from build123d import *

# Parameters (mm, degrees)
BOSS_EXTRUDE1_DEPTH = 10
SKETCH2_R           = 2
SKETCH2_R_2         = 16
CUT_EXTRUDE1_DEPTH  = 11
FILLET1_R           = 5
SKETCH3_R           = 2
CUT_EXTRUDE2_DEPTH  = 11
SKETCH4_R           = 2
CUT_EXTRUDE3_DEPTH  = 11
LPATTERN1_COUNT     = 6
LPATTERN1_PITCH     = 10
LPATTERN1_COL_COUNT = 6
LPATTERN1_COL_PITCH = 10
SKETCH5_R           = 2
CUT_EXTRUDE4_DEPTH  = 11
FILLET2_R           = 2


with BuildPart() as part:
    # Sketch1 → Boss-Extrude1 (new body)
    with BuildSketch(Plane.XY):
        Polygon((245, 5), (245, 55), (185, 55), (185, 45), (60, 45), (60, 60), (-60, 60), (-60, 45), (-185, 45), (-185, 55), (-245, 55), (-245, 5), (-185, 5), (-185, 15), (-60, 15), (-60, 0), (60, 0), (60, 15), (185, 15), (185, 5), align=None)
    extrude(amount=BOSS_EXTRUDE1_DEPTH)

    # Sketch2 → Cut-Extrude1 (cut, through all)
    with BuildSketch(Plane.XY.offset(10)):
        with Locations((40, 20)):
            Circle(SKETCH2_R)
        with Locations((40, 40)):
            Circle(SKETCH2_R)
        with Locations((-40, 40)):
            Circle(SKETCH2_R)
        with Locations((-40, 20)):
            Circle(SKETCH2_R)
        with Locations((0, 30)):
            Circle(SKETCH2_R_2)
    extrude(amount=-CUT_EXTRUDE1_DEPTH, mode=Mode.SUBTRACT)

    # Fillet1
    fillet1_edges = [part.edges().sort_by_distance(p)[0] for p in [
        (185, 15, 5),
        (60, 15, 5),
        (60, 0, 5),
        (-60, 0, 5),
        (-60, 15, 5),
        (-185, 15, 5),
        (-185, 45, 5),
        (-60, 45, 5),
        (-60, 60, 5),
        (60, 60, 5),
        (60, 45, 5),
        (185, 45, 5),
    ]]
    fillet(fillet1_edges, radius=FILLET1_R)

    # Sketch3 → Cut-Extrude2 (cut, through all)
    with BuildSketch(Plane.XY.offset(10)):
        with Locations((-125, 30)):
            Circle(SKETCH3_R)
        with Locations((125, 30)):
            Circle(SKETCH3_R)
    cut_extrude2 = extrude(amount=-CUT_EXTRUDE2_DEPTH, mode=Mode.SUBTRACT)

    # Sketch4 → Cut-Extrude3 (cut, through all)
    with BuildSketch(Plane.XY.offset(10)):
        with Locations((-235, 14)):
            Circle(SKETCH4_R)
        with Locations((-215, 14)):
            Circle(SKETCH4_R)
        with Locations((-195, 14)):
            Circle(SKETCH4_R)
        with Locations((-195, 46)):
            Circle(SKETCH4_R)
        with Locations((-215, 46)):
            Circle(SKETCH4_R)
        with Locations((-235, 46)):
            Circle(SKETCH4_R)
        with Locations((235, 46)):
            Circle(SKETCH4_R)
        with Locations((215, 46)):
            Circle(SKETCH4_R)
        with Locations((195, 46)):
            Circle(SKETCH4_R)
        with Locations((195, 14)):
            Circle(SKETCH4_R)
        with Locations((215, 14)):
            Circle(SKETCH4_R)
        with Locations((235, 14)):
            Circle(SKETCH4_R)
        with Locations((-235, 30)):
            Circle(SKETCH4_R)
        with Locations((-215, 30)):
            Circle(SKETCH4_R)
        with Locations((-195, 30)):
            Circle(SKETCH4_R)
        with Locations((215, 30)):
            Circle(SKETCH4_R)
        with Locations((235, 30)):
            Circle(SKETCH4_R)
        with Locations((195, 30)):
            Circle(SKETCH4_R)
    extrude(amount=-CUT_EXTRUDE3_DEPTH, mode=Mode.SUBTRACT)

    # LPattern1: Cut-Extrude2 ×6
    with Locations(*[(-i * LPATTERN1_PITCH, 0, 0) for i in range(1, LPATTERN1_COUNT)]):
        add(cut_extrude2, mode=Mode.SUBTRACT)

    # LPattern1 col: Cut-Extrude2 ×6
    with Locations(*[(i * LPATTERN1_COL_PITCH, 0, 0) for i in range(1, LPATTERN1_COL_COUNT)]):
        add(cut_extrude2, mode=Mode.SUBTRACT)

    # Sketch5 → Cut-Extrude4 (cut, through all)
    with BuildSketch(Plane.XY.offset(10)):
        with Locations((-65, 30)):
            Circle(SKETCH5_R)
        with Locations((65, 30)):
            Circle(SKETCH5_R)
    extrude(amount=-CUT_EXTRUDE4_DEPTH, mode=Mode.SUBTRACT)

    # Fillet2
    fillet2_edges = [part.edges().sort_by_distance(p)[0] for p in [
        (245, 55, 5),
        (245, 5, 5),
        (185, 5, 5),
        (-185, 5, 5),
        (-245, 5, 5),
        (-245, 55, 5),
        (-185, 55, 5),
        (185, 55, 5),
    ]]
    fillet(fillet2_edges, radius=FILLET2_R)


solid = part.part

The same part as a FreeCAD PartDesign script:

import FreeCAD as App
import Part
import Sketcher


def edges_at(feature, points):
    """Names of the edges that pass closest to the given points."""
    edges = feature.Shape.Edges
    near = lambda p: min(range(len(edges)), key=lambda i: edges[i].distToShape(Part.Vertex(*p))[0])
    return sorted({f"Edge{near(p) + 1}" for p in points})

doc = App.newDocument("Part")
body = doc.addObject("PartDesign::Body", "Body")

# Sketch on XY plane
sketch1 = body.newObject("Sketcher::SketchObject", "Sketch")
sketch1.AttachmentSupport = (doc.getObject("XY_Plane"), [""])
sketch1.MapMode = "FlatFace"
sketch1.addGeometry([
    Part.LineSegment(App.Vector(245, 5, 0), App.Vector(245, 55, 0)),  # 0
    Part.LineSegment(App.Vector(245, 55, 0), App.Vector(185, 55, 0)),  # 1
    Part.LineSegment(App.Vector(185, 55, 0), App.Vector(185, 45, 0)),  # 2
    Part.LineSegment(App.Vector(185, 45, 0), App.Vector(60, 45, 0)),  # 3
    Part.LineSegment(App.Vector(60, 45, 0), App.Vector(60, 60, 0)),  # 4
    Part.LineSegment(App.Vector(60, 60, 0), App.Vector(-60, 60, 0)),  # 5
    Part.LineSegment(App.Vector(-60, 60, 0), App.Vector(-60, 45, 0)),  # 6
    Part.LineSegment(App.Vector(-60, 45, 0), App.Vector(-185, 45, 0)),  # 7
    Part.LineSegment(App.Vector(-185, 45, 0), App.Vector(-185, 55, 0)),  # 8
    Part.LineSegment(App.Vector(-185, 55, 0), App.Vector(-245, 55, 0)),  # 9
    Part.LineSegment(App.Vector(-245, 55, 0), App.Vector(-245, 5, 0)),  # 10
    Part.LineSegment(App.Vector(-245, 5, 0), App.Vector(-185, 5, 0)),  # 11
    Part.LineSegment(App.Vector(-185, 5, 0), App.Vector(-185, 15, 0)),  # 12
    Part.LineSegment(App.Vector(-185, 15, 0), App.Vector(-60, 15, 0)),  # 13
    Part.LineSegment(App.Vector(-60, 15, 0), App.Vector(-60, 0, 0)),  # 14
    Part.LineSegment(App.Vector(-60, 0, 0), App.Vector(60, 0, 0)),  # 15
    Part.LineSegment(App.Vector(60, 0, 0), App.Vector(60, 15, 0)),  # 16
    Part.LineSegment(App.Vector(60, 15, 0), App.Vector(185, 15, 0)),  # 17
    Part.LineSegment(App.Vector(185, 15, 0), App.Vector(185, 5, 0)),  # 18
    Part.LineSegment(App.Vector(185, 5, 0), App.Vector(245, 5, 0)),  # 19
], False)
sketch1.addConstraint([
    Sketcher.Constraint("Coincident", 0, 2, 1, 1),
    Sketcher.Constraint("Coincident", 1, 2, 2, 1),
    Sketcher.Constraint("Coincident", 2, 2, 3, 1),
    Sketcher.Constraint("Coincident", 3, 2, 4, 1),
    Sketcher.Constraint("Coincident", 4, 2, 5, 1),
    Sketcher.Constraint("Coincident", 5, 2, 6, 1),
    Sketcher.Constraint("Coincident", 6, 2, 7, 1),
    Sketcher.Constraint("Coincident", 7, 2, 8, 1),
    Sketcher.Constraint("Coincident", 8, 2, 9, 1),
    Sketcher.Constraint("Coincident", 9, 2, 10, 1),
    Sketcher.Constraint("Coincident", 10, 2, 11, 1),
    Sketcher.Constraint("Coincident", 11, 2, 12, 1),
    Sketcher.Constraint("Coincident", 12, 2, 13, 1),
    Sketcher.Constraint("Coincident", 13, 2, 14, 1),
    Sketcher.Constraint("Coincident", 14, 2, 15, 1),
    Sketcher.Constraint("Coincident", 15, 2, 16, 1),
    Sketcher.Constraint("Coincident", 16, 2, 17, 1),
    Sketcher.Constraint("Coincident", 17, 2, 18, 1),
    Sketcher.Constraint("Coincident", 18, 2, 19, 1),
    Sketcher.Constraint("Coincident", 19, 2, 0, 1),
    Sketcher.Constraint("Vertical", 0),
    Sketcher.Constraint("Horizontal", 1),
    Sketcher.Constraint("Vertical", 2),
    Sketcher.Constraint("Horizontal", 3),
    Sketcher.Constraint("Vertical", 4),
    Sketcher.Constraint("Horizontal", 5),
    Sketcher.Constraint("Vertical", 6),
    Sketcher.Constraint("Horizontal", 7),
    Sketcher.Constraint("Vertical", 8),
    Sketcher.Constraint("Horizontal", 9),
    Sketcher.Constraint("Vertical", 10),
    Sketcher.Constraint("Horizontal", 11),
    Sketcher.Constraint("Vertical", 12),
    Sketcher.Constraint("Horizontal", 13),
    Sketcher.Constraint("Vertical", 14),
    Sketcher.Constraint("Horizontal", 15),
    Sketcher.Constraint("Vertical", 16),
    Sketcher.Constraint("Horizontal", 17),
    Sketcher.Constraint("Vertical", 18),
    Sketcher.Constraint("Horizontal", 19),
    Sketcher.Constraint("Symmetric", 14, 2, 15, 2, -1, 1),
    Sketcher.Constraint("Symmetric", 3, 2, 6, 2, -2),
    Sketcher.Constraint("Symmetric", 1, 2, 8, 2, -2),
    Sketcher.Constraint("Symmetric", 12, 2, 17, 2, -2),
    Sketcher.Constraint("Symmetric", 10, 2, 19, 2, -2),
    Sketcher.Constraint("Vertical", 8, 2, 11, 2),
    Sketcher.Constraint("Vertical", 6, 2, 13, 2),
    Sketcher.Constraint("Equal", 8, 12),
    Sketcher.Constraint("Equal", 6, 14),
    Sketcher.Constraint("DistanceX", 1, 2, 1, 1, 60.0),
    Sketcher.Constraint("DistanceX", 3, 2, 3, 1, 125.0),
    Sketcher.Constraint("DistanceX", 5, 2, 5, 1, 120.0),
    Sketcher.Constraint("DistanceY", 0, 1, 0, 2, 50.0),
    Sketcher.Constraint("DistanceY", 2, 2, 2, 1, 10.0),
    Sketcher.Constraint("DistanceY", 4, 1, 4, 2, 15.0),
])
pad1 = body.newObject("PartDesign::Pad", "Pad")
pad1.Profile = sketch1
pad1.Length = 10

# Sketch on XY plane
sketch2 = body.newObject("Sketcher::SketchObject", "Sketch001")
sketch2.AttachmentSupport = (doc.getObject("XY_Plane"), [""])
sketch2.MapMode = "FlatFace"
sketch2.AttachmentOffset = App.Placement(App.Vector(0, 0, 10), App.Rotation())
sketch2.addGeometry([
    Part.Circle(App.Vector(40, 20, 0), App.Vector(0, 0, 1), 2),  # 0
    Part.Circle(App.Vector(40, 40, 0), App.Vector(0, 0, 1), 2),  # 1
    Part.Circle(App.Vector(-40, 40, 0), App.Vector(0, 0, 1), 2),  # 2
    Part.Circle(App.Vector(-40, 20, 0), App.Vector(0, 0, 1), 2),  # 3
    Part.Circle(App.Vector(0, 30, 0), App.Vector(0, 0, 1), 16),  # 4
], False)
sketch2.addConstraint([
    Sketcher.Constraint("Equal", 0, 1),
    Sketcher.Constraint("Equal", 1, 2),
    Sketcher.Constraint("Equal", 2, 3),
    Sketcher.Constraint("Symmetric", 1, 3, 2, 3, -2),
    Sketcher.Constraint("Symmetric", 0, 3, 3, 3, -2),
    Sketcher.Constraint("PointOnObject", 4, 3, -2),
    Sketcher.Constraint("Vertical", 0, 3, 1, 3),
    Sketcher.Constraint("Diameter", 0, 4.0),
    Sketcher.Constraint("Diameter", 4, 32.0),
    Sketcher.Constraint("DistanceX", -1, 1, 0, 3, 40.0),
    Sketcher.Constraint("DistanceY", -1, 1, 0, 3, 20.0),
    Sketcher.Constraint("DistanceY", -1, 1, 1, 3, 40.0),
    Sketcher.Constraint("DistanceY", -1, 1, 4, 3, 30.0),
])
pocket1 = body.newObject("PartDesign::Pocket", "Pocket")
pocket1.Profile = sketch2
pocket1.Type = "ThroughAll"
doc.recompute()

fillet = body.newObject("PartDesign::Fillet", "Fillet")
fillet.Base = (pocket1, edges_at(pocket1, [
    (185, 15, 5),
    (60, 15, 5),
    (60, 0, 5),
    (-60, 0, 5),
    (-60, 15, 5),
    (-185, 15, 5),
    (-185, 45, 5),
    (-60, 45, 5),
    (-60, 60, 5),
    (60, 60, 5),
    (60, 45, 5),
    (185, 45, 5),
]))
fillet.Radius = 5

# Sketch on XY plane
sketch3 = body.newObject("Sketcher::SketchObject", "Sketch002")
sketch3.AttachmentSupport = (doc.getObject("XY_Plane"), [""])
sketch3.MapMode = "FlatFace"
sketch3.AttachmentOffset = App.Placement(App.Vector(0, 0, 10), App.Rotation())
sketch3.addGeometry([
    Part.Circle(App.Vector(-125, 30, 0), App.Vector(0, 0, 1), 2),
    Part.Circle(App.Vector(125, 30, 0), App.Vector(0, 0, 1), 2),
], False)
sketch3.addConstraint([
    Sketcher.Constraint("Equal", 0, 1),
    Sketcher.Constraint("Symmetric", 0, 3, 1, 3, -2),
    Sketcher.Constraint("Diameter", 0, 4.0),
    Sketcher.Constraint("DistanceX", 0, 3, -1, 1, 125.0),
    Sketcher.Constraint("DistanceY", -1, 1, 0, 3, 30.0),
])
pocket2 = body.newObject("PartDesign::Pocket", "Pocket001")
pocket2.Profile = sketch3
pocket2.Type = "ThroughAll"

# Sketch on XY plane
sketch4 = body.newObject("Sketcher::SketchObject", "Sketch003")
sketch4.AttachmentSupport = (doc.getObject("XY_Plane"), [""])
sketch4.MapMode = "FlatFace"
sketch4.AttachmentOffset = App.Placement(App.Vector(0, 0, 10), App.Rotation())
sketch4.addGeometry([
    Part.Circle(App.Vector(-235, 14, 0), App.Vector(0, 0, 1), 2),  # 0
    Part.Circle(App.Vector(-215, 14, 0), App.Vector(0, 0, 1), 2),  # 1
    Part.Circle(App.Vector(-195, 14, 0), App.Vector(0, 0, 1), 2),  # 2
    Part.Circle(App.Vector(-195, 46, 0), App.Vector(0, 0, 1), 2),  # 3
    Part.Circle(App.Vector(-215, 46, 0), App.Vector(0, 0, 1), 2),  # 4
    Part.Circle(App.Vector(-235, 46, 0), App.Vector(0, 0, 1), 2),  # 5
    Part.Circle(App.Vector(235, 46, 0), App.Vector(0, 0, 1), 2),  # 6
    Part.Circle(App.Vector(215, 46, 0), App.Vector(0, 0, 1), 2),  # 7
    Part.Circle(App.Vector(195, 46, 0), App.Vector(0, 0, 1), 2),  # 8
    Part.Circle(App.Vector(195, 14, 0), App.Vector(0, 0, 1), 2),  # 9
    Part.Circle(App.Vector(215, 14, 0), App.Vector(0, 0, 1), 2),  # 10
    Part.Circle(App.Vector(235, 14, 0), App.Vector(0, 0, 1), 2),  # 11
    Part.Circle(App.Vector(-235, 30, 0), App.Vector(0, 0, 1), 2),  # 12
    Part.Circle(App.Vector(-215, 30, 0), App.Vector(0, 0, 1), 2),  # 13
    Part.Circle(App.Vector(-195, 30, 0), App.Vector(0, 0, 1), 2),  # 14
    Part.Circle(App.Vector(215, 30, 0), App.Vector(0, 0, 1), 2),  # 15
    Part.Circle(App.Vector(235, 30, 0), App.Vector(0, 0, 1), 2),  # 16
    Part.Circle(App.Vector(195, 30, 0), App.Vector(0, 0, 1), 2),  # 17
], False)
sketch4.addConstraint([
    Sketcher.Constraint("Equal", 0, 1),
    Sketcher.Constraint("Equal", 1, 2),
    Sketcher.Constraint("Equal", 2, 3),
    Sketcher.Constraint("Equal", 3, 4),
    Sketcher.Constraint("Equal", 4, 5),
    Sketcher.Constraint("Equal", 5, 6),
    Sketcher.Constraint("Equal", 6, 7),
    Sketcher.Constraint("Equal", 7, 8),
    Sketcher.Constraint("Equal", 8, 9),
    Sketcher.Constraint("Equal", 9, 10),
    Sketcher.Constraint("Equal", 10, 11),
    Sketcher.Constraint("Equal", 11, 12),
    Sketcher.Constraint("Equal", 12, 13),
    Sketcher.Constraint("Equal", 13, 14),
    Sketcher.Constraint("Equal", 14, 15),
    Sketcher.Constraint("Equal", 15, 16),
    Sketcher.Constraint("Equal", 16, 17),
    Sketcher.Constraint("Symmetric", 5, 3, 6, 3, -2),
    Sketcher.Constraint("Symmetric", 4, 3, 7, 3, -2),
    Sketcher.Constraint("Symmetric", 3, 3, 8, 3, -2),
    Sketcher.Constraint("Symmetric", 2, 3, 9, 3, -2),
    Sketcher.Constraint("Symmetric", 1, 3, 10, 3, -2),
    Sketcher.Constraint("Symmetric", 0, 3, 11, 3, -2),
    Sketcher.Constraint("Symmetric", 13, 3, 15, 3, -2),
    Sketcher.Constraint("Symmetric", 12, 3, 16, 3, -2),
    Sketcher.Constraint("Symmetric", 14, 3, 17, 3, -2),
    Sketcher.Constraint("Horizontal", 0, 3, 1, 3),
    Sketcher.Constraint("Horizontal", 1, 3, 2, 3),
    Sketcher.Constraint("Horizontal", 3, 3, 4, 3),
    Sketcher.Constraint("Horizontal", 4, 3, 5, 3),
    Sketcher.Constraint("Horizontal", 12, 3, 13, 3),
    Sketcher.Constraint("Horizontal", 13, 3, 14, 3),
    Sketcher.Constraint("Vertical", 2, 3, 3, 3),
    Sketcher.Constraint("Vertical", 1, 3, 4, 3),
    Sketcher.Constraint("Vertical", 0, 3, 5, 3),
    Sketcher.Constraint("Vertical", 5, 3, 12, 3),
    Sketcher.Constraint("Vertical", 4, 3, 13, 3),
    Sketcher.Constraint("Vertical", 3, 3, 14, 3),
    Sketcher.Constraint("Diameter", 0, 4.0),
    Sketcher.Constraint("DistanceX", 0, 3, -1, 1, 235.0),
    Sketcher.Constraint("DistanceY", -1, 1, 0, 3, 14.0),
    Sketcher.Constraint("DistanceX", 1, 3, -1, 1, 215.0),
    Sketcher.Constraint("DistanceX", 2, 3, -1, 1, 195.0),
    Sketcher.Constraint("DistanceY", -1, 1, 3, 3, 46.0),
    Sketcher.Constraint("DistanceY", -1, 1, 12, 3, 30.0),
])
pocket3 = body.newObject("PartDesign::Pocket", "Pocket002")
pocket3.Profile = sketch4
pocket3.Type = "ThroughAll"
doc.recompute()

linearpattern = body.newObject("PartDesign::LinearPattern", "LinearPattern")
linearpattern.Originals = [pocket2]
linearpattern.Direction = (doc.getObject("X_Axis"), [""])
linearpattern.Mode = "offset"
linearpattern.Offset = 10
linearpattern.Occurrences = 6
linearpattern.Reversed = True
body.Tip = linearpattern
doc.recompute()

linearpattern2 = body.newObject("PartDesign::LinearPattern", "LinearPattern001")
linearpattern2.Originals = [pocket2]
linearpattern2.Direction = (doc.getObject("X_Axis"), [""])
linearpattern2.Mode = "offset"
linearpattern2.Offset = 10
linearpattern2.Occurrences = 6
body.Tip = linearpattern2

# Sketch on XY plane
sketch5 = body.newObject("Sketcher::SketchObject", "Sketch004")
sketch5.AttachmentSupport = (doc.getObject("XY_Plane"), [""])
sketch5.MapMode = "FlatFace"
sketch5.AttachmentOffset = App.Placement(App.Vector(0, 0, 10), App.Rotation())
sketch5.addGeometry([
    Part.Circle(App.Vector(-65, 30, 0), App.Vector(0, 0, 1), 2),
    Part.Circle(App.Vector(65, 30, 0), App.Vector(0, 0, 1), 2),
], False)
sketch5.addConstraint([
    Sketcher.Constraint("Equal", 0, 1),
    Sketcher.Constraint("Symmetric", 0, 3, 1, 3, -2),
    Sketcher.Constraint("Diameter", 0, 4.0),
    Sketcher.Constraint("DistanceX", 0, 3, -1, 1, 65.0),
    Sketcher.Constraint("DistanceY", -1, 1, 0, 3, 30.0),
])
pocket4 = body.newObject("PartDesign::Pocket", "Pocket003")
pocket4.Profile = sketch5
pocket4.Type = "ThroughAll"
doc.recompute()

fillet2 = body.newObject("PartDesign::Fillet", "Fillet001")
fillet2.Base = (pocket4, edges_at(pocket4, [
    (245, 55, 5),
    (245, 5, 5),
    (185, 5, 5),
    (-185, 5, 5),
    (-245, 5, 5),
    (-245, 55, 5),
    (-185, 55, 5),
    (185, 55, 5),
]))
fillet2.Radius = 2

doc.recompute()
